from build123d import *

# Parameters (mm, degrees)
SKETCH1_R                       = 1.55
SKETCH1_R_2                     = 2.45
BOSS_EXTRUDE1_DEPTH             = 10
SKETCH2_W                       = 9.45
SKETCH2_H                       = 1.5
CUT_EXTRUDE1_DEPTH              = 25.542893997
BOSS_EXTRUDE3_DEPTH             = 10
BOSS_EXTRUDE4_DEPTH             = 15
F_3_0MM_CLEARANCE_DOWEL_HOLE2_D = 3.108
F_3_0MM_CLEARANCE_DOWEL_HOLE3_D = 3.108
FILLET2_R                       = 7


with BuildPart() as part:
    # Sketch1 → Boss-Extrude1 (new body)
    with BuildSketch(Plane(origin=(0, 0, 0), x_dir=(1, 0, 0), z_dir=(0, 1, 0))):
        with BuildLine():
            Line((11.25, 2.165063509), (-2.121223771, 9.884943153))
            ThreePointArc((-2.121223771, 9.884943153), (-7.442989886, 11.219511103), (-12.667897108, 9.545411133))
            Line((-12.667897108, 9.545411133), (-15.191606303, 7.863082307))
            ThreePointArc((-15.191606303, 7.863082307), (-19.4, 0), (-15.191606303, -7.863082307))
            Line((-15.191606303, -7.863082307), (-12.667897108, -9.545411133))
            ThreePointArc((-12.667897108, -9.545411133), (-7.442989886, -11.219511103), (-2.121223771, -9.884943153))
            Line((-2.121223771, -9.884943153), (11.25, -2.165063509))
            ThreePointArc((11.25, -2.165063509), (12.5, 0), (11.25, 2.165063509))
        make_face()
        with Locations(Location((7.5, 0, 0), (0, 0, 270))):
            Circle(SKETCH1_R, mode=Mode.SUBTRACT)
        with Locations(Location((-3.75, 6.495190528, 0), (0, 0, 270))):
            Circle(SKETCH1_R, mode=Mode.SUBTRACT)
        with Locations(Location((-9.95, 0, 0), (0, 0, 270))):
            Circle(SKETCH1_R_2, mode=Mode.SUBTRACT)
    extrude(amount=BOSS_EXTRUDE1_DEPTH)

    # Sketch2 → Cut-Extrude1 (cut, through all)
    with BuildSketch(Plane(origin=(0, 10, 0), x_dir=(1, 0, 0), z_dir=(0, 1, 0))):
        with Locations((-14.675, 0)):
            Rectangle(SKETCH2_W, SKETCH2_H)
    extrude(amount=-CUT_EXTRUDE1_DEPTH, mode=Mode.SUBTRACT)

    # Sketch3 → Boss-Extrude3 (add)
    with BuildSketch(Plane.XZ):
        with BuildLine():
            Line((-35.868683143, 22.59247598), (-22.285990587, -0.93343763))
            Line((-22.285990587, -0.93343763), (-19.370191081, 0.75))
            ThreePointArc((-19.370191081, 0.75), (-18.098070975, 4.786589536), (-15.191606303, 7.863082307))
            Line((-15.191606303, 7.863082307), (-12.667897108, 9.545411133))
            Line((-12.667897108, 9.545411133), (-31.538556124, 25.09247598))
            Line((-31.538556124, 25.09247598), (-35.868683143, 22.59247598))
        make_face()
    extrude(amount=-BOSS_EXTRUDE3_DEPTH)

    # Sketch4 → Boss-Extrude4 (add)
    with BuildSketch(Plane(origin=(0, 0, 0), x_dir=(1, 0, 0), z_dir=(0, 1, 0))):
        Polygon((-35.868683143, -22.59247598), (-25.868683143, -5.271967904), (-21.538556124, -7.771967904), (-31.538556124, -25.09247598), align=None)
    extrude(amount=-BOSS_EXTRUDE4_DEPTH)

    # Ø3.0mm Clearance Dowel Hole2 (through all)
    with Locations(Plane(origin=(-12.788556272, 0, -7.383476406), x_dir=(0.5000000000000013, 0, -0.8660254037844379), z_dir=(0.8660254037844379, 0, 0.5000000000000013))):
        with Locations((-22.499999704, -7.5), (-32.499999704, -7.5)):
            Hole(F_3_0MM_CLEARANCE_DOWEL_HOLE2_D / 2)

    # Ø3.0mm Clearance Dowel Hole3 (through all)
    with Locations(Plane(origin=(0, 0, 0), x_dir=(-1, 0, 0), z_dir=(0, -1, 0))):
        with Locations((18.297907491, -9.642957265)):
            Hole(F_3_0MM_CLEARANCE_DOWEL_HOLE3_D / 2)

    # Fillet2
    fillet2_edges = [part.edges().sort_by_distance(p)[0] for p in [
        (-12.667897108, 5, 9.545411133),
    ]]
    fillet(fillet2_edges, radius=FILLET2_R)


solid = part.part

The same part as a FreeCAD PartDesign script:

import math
import FreeCAD as App
import Part
import Sketcher

V = App.Vector
Q = App.Units.Quantity


def edges_at(feature, points):
    """Names of the edges that pass closest to the given points."""
    edges = feature.Shape.Edges
    near = lambda p: min(range(len(edges)), key=lambda i: edges[i].distToShape(Part.Vertex(*p))[0])
    return sorted({f"Edge{near(p) + 1}" for p in points})


def add_polygon(sketch, points):
    """Adds a closed chain of lines whose ends are joined by coincident constraints."""
    first, n = sketch.GeometryCount, len(points)
    for a, b in zip(points, points[1:] + points[:1]):
        sketch.addGeometry(Part.LineSegment(App.Vector(*a, 0), App.Vector(*b, 0)), False)
    for i in range(n):
        sketch.addConstraint(Sketcher.Constraint("Coincident", first + i, 2, first + (i + 1) % n, 1))

doc = App.newDocument("Part")
body = doc.addObject("PartDesign::Body", "Body")

# Sketch on XZ plane
sketch1 = body.newObject("Sketcher::SketchObject", "Sketch")
sketch1.AttachmentSupport = (doc.getObject("XZ_Plane"), [""])
sketch1.MapMode = "FlatFace"
sketch1.addGeometry([
    Part.LineSegment(V(11.2, -2.2, 0), V(-2.1, -9.9, 0)),  # 0
    Part.ArcOfCircle(Part.Circle(V(-7.1, -1.2, 0), V(0, 0, 1), 10), math.radians(-124), math.radians(-60)),  # 1
    Part.LineSegment(V(-12.7, -9.5, 0), V(-15.2, -7.9, 0)),  # 2
    Part.ArcOfCircle(Part.Circle(V(-9.9, 0, 0), V(0, 0, 1), 9.4), math.radians(124), math.radians(236)),  # 3
    Part.LineSegment(V(-15.2, 7.9, 0), V(-12.7, 9.5, 0)),  # 4
    Part.ArcOfCircle(Part.Circle(V(-7.1, 1.2, 0), V(0, 0, 1), 10), math.radians(60), math.radians(124)),  # 5
    Part.LineSegment(V(-2.1, 9.9, 0), V(11.2, 2.2, 0)),  # 6
    Part.ArcOfCircle(Part.Circle(V(10, 0, 0), V(0, 0, 1), 2.5), math.radians(-60), math.radians(60)),  # 7
    Part.Circle(V(-9.9, 0, 0), V(0, 0, 1), 2.5),  # 8
    Part.Circle(V(7.5, 0, 0), V(0, 0, 1), 1.6),  # 9
    Part.Circle(V(-3.8, -6.5, 0), V(0, 0, 1), 1.6),  # 10
], False)
sketch1.addConstraint([
    Sketcher.Constraint("Tangent", 0, 2, 1, 2),
    Sketcher.Constraint("Tangent", 1, 1, 2, 1),
    Sketcher.Constraint("Tangent", 2, 2, 3, 2),
    Sketcher.Constraint("Tangent", 3, 1, 4, 1),
    Sketcher.Constraint("Tangent", 4, 2, 5, 2),
    Sketcher.Constraint("Tangent", 5, 1, 6, 1),
    Sketcher.Constraint("Tangent", 6, 2, 7, 2),
    Sketcher.Constraint("Tangent", 7, 1, 0, 1),
    Sketcher.Constraint("Coincident", 8, 3, 3, 3),
    Sketcher.Constraint("Equal", 1, 5),
    Sketcher.Constraint("Equal", 9, 10),
    Sketcher.Constraint("Symmetric", 1, 3, 5, 3, -1),
    Sketcher.Constraint("PointOnObject", 3, 3, -1),
    Sketcher.Constraint("PointOnObject", 7, 3, -1),
    Sketcher.Constraint("PointOnObject", 9, 3, -1),
    Sketcher.Constraint("Radius", 1, Q("10 mm")),
    Sketcher.Constraint("Diameter", 8, Q("4.9 mm")),
    Sketcher.Constraint("Diameter", 9, Q("3.1 mm")),
    Sketcher.Constraint("Radius", 7, Q("2.5 mm")),
    Sketcher.Constraint("Angle", 0, Q("-150 deg")),
    Sketcher.Constraint("Radius", 3, Q("9.45 mm")),
    Sketcher.Constraint("DistanceX", -1, 1, 7, 3, Q("10 mm")),
    Sketcher.Constraint("DistanceX", 10, 3, 6, 2, Q("15 mm")),
    Sketcher.Constraint("DistanceX", -1, 1, 9, 3, Q("7.5 mm")),
    Sketcher.Constraint("DistanceX", 3, 3, 10, 3, Q("6.2 mm")),
    Sketcher.Constraint("DistanceY", 10, 3, 1, 3, Q("5.270501 mm")),
    Sketcher.Constraint("DistanceY", 1, 3, 4, 2, Q("10.7701 mm")),
])
pad1 = body.newObject("PartDesign::Pad", "Pad")
pad1.Profile = sketch1
pad1.Length = 10
pad1.Reversed = True

# Sketch on XZ plane
sketch2 = body.newObject("Sketcher::SketchObject", "Sketch001")
sketch2.AttachmentSupport = (doc.getObject("XZ_Plane"), [""])
sketch2.MapMode = "FlatFace"
sketch2.AttachmentOffset = App.Placement(V(0, 0, -10), App.Rotation())
add_polygon(sketch2, [(-19.4, -0.8), (-19.4, 0.8), (-9.9, 0.8), (-9.9, -0.8)])  # lines 0-3
sketch2.addConstraint([
    Sketcher.Constraint("Vertical", 0),
    Sketcher.Constraint("Horizontal", 1),
    Sketcher.Constraint("Vertical", 2),
    Sketcher.Constraint("Horizontal", 3),
    Sketcher.Constraint("DistanceY", 0, 1, 0, 2, Q("1.5 mm")),
    Sketcher.Constraint("DistanceX", 1, 1, 1, 2, Q("9.45 mm")),
    Sketcher.Constraint("DistanceX", 0, 2, -1, 1, Q("19.4 mm")),
    Sketcher.Constraint("DistanceY", -1, 1, 0, 2, Q("0.75 mm")),
])
pocket1 = body.newObject("PartDesign::Pocket", "Pocket")
pocket1.Profile = sketch2
pocket1.Type = "ThroughAll"
pocket1.Reversed = True

# Sketch on XZ plane
sketch3 = body.newObject("Sketcher::SketchObject", "Sketch002")
sketch3.AttachmentSupport = (doc.getObject("XZ_Plane"), [""])
sketch3.MapMode = "FlatFace"
sketch3.addGeometry([
    Part.LineSegment(V(-35.9, 22.6, 0), V(-22.3, -0.9, 0)),  # 0
    Part.LineSegment(V(-22.3, -0.9, 0), V(-19.4, 0.8, 0)),  # 1
    Part.ArcOfCircle(Part.Circle(V(-9.9, 0, 0), V(0, 0, 1), 9.5), math.radians(124), math.radians(175)),  # 2
    Part.LineSegment(V(-15.2, 7.9, 0), V(-12.7, 9.5, 0)),  # 3
    Part.LineSegment(V(-12.7, 9.5, 0), V(-31.5, 25.1, 0)),  # 4
    Part.LineSegment(V(-31.5, 25.1, 0), V(-35.9, 22.6, 0)),  # 5
], False)
sketch3.addConstraint([
    Sketcher.Constraint("Coincident", 0, 2, 1, 1),
    Sketcher.Constraint("Coincident", 1, 2, 2, 2),
    Sketcher.Constraint("Tangent", 2, 1, 3, 1),
    Sketcher.Constraint("Coincident", 3, 2, 4, 1),
    Sketcher.Constraint("Coincident", 4, 2, 5, 1),
    Sketcher.Constraint("Coincident", 5, 2, 0, 1),
    Sketcher.Constraint("PointOnObject", 2, 3, -1),
    Sketcher.Constraint("Perpendicular", 0, 1),
    Sketcher.Constraint("Parallel", 1, 5),
    Sketcher.Constraint("Angle", 0, Q("-60 deg")),
    Sketcher.Constraint("Radius", 2, Q("9.45 mm")),
    Sketcher.Constraint("Distance", 5, Q("5 mm")),
    Sketcher.Constraint("DistanceX", 2, 3, -1, 1, Q("9.95 mm")),
    Sketcher.Constraint("DistanceY", -1, 1, 1, 2, Q("0.75 mm")),
    Sketcher.Constraint("DistanceX", 0, 2, 1, 2, Q("2.9158 mm")),
    Sketcher.Constraint("Distance", 3, Q("3.033041 mm")),
    Sketcher.Constraint("DistanceY", -1, 1, 3, 2, Q("9.545411 mm")),
    Sketcher.Constraint("DistanceX", 4, 2, 2, 1, Q("16.34695 mm")),
])
pad2 = body.newObject("PartDesign::Pad", "Pad001")
pad2.Profile = sketch3
pad2.Length = 10
pad2.Reversed = True

# Sketch on XZ plane
sketch4 = body.newObject("Sketcher::SketchObject", "Sketch003")
sketch4.AttachmentSupport = (doc.getObject("XZ_Plane"), [""])
sketch4.MapMode = "FlatFace"
add_polygon(sketch4, [(-26, 5), (-36, 23), (-32, 25), (-22, 8)])  # lines 0-3
sketch4.addConstraint([
    Sketcher.Constraint("Perpendicular", 0, 1),
    Sketcher.Constraint("Perpendicular", 1, 2),
    Sketcher.Constraint("Perpendicular", 2, 3),
    Sketcher.Constraint("Angle", 0, Q("120 deg")),
    Sketcher.Constraint("Distance", 0, Q("20 mm")),
    Sketcher.Constraint("Distance", 1, Q("5 mm")),
    Sketcher.Constraint("DistanceX", 0, 2, -1, 1, Q("35.868683 mm")),
    Sketcher.Constraint("DistanceY", -1, 1, 0, 2, Q("22.592476 mm")),
])
pad3 = body.newObject("PartDesign::Pad", "Pad002")
pad3.Profile = sketch4
pad3.Length = 15

# Sketch on an angled plane
sketch5 = body.newObject("Sketcher::SketchObject", "Sketch004")
sketch5.Placement = App.Placement(V(-12.788556, 0, -7.383476), App.Rotation(V(0.5, 0, -0.866025404), V(0, 1, 0), V(0.866025404, 0, 0.5), "ZXY"))
sketch5.addGeometry([
    Part.Circle(V(-22.5, -7.5, 0), V(0, 0, 1), 1.6),
    Part.Circle(V(-32.5, -7.5, 0), V(0, 0, 1), 1.6),
], False)
sketch5.addConstraint([
    Sketcher.Constraint("Equal", 0, 1),
    Sketcher.Constraint("Horizontal", 0, 3, 1, 3),
    Sketcher.Constraint("Diameter", 0, Q("3.108 mm")),
    Sketcher.Constraint("DistanceX", 1, 3, 0, 3, Q("10 mm")),
    Sketcher.Constraint("DistanceX", 0, 3, -1, 1, Q("22.5 mm")),
    Sketcher.Constraint("DistanceY", 0, 3, -1, 1, Q("7.5 mm")),
])
doc.recompute()
hole = body.newObject("PartDesign::Hole", "Hole")
hole.Profile = sketch5
hole.ThreadType = "None"
hole.Diameter = 3.108
hole.DepthType = "ThroughAll"

# Sketch on XZ plane
sketch6 = body.newObject("Sketcher::SketchObject", "Sketch005")
sketch6.AttachmentSupport = (doc.getObject("XZ_Plane"), [""])
sketch6.MapMode = "FlatFace"
sketch6.addGeometry(Part.Circle(V(-18.3, 9.6, 0), V(0, 0, 1), 1.6), False)
sketch6.addConstraint([
    Sketcher.Constraint("Diameter", 0, Q("3.108 mm")),
    Sketcher.Constraint("DistanceX", 0, 3, -1, 1, Q("18.297907 mm")),
    Sketcher.Constraint("DistanceY", -1, 1, 0, 3, Q("9.642957 mm")),
])
doc.recompute()
hole2 = body.newObject("PartDesign::Hole", "Hole001")
hole2.Profile = sketch6
hole2.ThreadType = "None"
hole2.Diameter = 3.108
hole2.DepthType = "ThroughAll"
doc.recompute()

fillet = body.newObject("PartDesign::Fillet", "Fillet")
fillet.Base = (hole2, edges_at(hole2, [(-12.668, 5, 9.545)]))
fillet.Radius = 7

doc.recompute()
